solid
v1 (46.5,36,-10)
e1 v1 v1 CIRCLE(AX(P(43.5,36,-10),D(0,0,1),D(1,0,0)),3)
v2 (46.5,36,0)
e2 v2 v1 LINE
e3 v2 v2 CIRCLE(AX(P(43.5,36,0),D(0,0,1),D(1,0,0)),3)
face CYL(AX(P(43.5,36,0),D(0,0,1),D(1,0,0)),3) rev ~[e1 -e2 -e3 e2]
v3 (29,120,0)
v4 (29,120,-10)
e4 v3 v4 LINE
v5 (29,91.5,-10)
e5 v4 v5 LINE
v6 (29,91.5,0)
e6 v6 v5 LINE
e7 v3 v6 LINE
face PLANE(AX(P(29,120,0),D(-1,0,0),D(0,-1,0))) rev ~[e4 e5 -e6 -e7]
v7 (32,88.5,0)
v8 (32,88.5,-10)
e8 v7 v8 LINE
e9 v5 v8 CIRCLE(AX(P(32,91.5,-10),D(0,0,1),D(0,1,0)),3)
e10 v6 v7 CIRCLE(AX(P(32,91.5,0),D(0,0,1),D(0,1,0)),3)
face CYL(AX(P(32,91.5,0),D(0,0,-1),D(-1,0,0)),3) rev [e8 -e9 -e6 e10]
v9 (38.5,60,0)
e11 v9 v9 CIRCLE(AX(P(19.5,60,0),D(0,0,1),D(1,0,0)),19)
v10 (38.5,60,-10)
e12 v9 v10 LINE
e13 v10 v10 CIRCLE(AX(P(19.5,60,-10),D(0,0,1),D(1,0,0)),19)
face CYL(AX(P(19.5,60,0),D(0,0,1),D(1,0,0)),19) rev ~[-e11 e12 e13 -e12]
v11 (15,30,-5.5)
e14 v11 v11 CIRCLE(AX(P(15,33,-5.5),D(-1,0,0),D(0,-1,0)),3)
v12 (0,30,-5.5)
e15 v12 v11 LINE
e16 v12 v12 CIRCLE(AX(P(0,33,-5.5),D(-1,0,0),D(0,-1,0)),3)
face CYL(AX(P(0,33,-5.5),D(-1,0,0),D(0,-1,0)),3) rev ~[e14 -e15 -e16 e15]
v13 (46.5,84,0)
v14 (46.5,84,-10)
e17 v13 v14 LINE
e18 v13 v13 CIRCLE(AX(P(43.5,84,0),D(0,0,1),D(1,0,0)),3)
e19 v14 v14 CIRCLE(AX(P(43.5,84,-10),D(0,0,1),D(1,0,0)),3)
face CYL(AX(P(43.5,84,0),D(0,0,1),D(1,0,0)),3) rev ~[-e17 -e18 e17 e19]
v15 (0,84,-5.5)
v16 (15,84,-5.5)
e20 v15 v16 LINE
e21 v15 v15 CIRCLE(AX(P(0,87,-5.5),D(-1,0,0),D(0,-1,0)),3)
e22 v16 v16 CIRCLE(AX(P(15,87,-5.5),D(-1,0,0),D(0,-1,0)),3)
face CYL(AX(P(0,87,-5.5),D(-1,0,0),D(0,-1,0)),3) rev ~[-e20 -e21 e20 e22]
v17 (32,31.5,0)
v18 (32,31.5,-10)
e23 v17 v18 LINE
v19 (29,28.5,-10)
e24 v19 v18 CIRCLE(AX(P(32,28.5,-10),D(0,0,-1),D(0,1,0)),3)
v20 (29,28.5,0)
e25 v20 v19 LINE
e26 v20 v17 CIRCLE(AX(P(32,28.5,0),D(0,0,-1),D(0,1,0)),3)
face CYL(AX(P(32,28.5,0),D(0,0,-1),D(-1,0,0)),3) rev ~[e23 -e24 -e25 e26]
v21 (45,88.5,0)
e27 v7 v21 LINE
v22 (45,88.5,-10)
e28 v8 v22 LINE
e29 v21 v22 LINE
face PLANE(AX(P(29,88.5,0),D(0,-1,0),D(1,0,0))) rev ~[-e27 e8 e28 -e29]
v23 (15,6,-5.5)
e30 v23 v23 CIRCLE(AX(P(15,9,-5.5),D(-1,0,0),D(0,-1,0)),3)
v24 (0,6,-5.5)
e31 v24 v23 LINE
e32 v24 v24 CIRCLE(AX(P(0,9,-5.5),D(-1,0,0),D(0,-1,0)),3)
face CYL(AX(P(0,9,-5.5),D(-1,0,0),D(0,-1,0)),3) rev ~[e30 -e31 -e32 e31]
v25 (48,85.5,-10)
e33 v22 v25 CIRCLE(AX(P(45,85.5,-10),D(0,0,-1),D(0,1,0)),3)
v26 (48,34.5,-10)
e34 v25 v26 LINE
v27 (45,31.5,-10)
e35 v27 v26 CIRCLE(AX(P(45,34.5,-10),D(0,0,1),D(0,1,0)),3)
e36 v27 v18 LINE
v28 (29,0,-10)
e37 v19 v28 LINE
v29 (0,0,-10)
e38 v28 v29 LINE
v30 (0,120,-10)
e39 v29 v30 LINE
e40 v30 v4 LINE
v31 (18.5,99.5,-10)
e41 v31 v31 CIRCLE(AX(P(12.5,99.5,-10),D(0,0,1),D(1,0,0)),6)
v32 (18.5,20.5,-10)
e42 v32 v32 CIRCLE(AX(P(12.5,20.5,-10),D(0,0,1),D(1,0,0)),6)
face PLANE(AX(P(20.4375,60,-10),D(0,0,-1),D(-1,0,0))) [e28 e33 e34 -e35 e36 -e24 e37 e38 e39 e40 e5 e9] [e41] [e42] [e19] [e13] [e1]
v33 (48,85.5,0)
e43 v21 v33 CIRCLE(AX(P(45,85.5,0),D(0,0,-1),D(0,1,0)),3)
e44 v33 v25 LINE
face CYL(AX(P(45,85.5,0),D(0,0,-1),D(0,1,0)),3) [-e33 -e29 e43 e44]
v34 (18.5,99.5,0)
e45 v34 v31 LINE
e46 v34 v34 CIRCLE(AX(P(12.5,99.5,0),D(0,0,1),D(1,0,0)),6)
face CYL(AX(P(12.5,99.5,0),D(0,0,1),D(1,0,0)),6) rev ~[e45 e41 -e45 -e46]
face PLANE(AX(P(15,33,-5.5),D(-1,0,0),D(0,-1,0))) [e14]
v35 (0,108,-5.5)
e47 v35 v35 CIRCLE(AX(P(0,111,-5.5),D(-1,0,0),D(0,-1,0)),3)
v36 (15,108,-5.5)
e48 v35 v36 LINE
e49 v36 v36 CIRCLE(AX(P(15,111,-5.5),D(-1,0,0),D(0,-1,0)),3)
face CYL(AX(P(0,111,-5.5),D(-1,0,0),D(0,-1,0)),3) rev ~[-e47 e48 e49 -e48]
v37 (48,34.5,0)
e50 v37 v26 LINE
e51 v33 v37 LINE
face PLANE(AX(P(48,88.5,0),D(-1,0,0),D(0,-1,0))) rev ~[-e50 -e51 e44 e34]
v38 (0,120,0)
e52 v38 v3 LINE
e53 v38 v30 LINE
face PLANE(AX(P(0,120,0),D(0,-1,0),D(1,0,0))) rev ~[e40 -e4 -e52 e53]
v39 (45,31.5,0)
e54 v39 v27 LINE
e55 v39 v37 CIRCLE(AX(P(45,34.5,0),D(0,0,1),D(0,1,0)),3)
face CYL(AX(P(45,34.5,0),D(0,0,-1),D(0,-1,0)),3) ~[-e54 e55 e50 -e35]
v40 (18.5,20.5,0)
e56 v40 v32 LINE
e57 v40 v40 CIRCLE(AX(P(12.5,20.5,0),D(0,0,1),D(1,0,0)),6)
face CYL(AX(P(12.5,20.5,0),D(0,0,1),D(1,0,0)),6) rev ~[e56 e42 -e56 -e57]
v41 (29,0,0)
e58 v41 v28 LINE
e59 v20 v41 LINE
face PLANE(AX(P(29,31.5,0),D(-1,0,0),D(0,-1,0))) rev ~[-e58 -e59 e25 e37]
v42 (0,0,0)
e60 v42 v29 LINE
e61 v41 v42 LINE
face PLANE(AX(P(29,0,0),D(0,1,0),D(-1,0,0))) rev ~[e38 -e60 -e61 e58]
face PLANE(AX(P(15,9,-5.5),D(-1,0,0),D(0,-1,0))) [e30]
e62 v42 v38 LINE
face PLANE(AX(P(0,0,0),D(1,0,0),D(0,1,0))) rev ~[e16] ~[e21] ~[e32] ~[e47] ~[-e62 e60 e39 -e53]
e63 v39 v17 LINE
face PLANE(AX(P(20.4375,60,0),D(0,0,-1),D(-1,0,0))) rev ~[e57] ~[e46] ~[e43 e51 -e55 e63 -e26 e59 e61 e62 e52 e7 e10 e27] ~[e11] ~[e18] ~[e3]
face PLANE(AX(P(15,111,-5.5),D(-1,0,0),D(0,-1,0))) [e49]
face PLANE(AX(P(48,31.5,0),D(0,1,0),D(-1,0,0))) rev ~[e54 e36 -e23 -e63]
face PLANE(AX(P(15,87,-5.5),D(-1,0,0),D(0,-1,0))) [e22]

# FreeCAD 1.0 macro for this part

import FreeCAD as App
import Part
import Sketcher

V = App.Vector


def edges_at(feature, points):
    """Names of the edges that pass closest to the given points."""
    edges = feature.Shape.Edges
    near = lambda p: min(range(len(edges)), key=lambda i: edges[i].distToShape(Part.Vertex(*p))[0])
    return sorted({f"Edge{near(p) + 1}" for p in points})


def add_polygon(sketch, points):
    """Adds a closed chain of lines whose ends are joined by coincident constraints."""
    first, n = sketch.GeometryCount, len(points)
    for a, b in zip(points, points[1:] + points[:1]):
        sketch.addGeometry(Part.LineSegment(App.Vector(*a, 0), App.Vector(*b, 0)), False)
    for i in range(n):
        sketch.addConstraint(Sketcher.Constraint("Coincident", first + i, 2, first + (i + 1) % n, 1))

doc = App.newDocument("Part")
body = doc.addObject("PartDesign::Body", "Body")

sketch1 = body.newObject("Sketcher::SketchObject", "Sketch")
sketch1.AttachmentSupport = (doc.getObject("XY_Plane"), [""])
sketch1.MapMode = "FlatFace"
add_polygon(sketch1, [(0, 120), (0, 0), (29, 0), (29, 31.5), (48, 31.5), (48, 88.5), (29, 88.5), (29, 120)])
sketch1.addConstraint(Sketcher.Constraint("Vertical", 0))
sketch1.addConstraint(Sketcher.Constraint("Horizontal", 1))
sketch1.addConstraint(Sketcher.Constraint("Vertical", 2))
sketch1.addConstraint(Sketcher.Constraint("Horizontal", 3))
sketch1.addConstraint(Sketcher.Constraint("Vertical", 4))
sketch1.addConstraint(Sketcher.Constraint("Horizontal", 5))
sketch1.addConstraint(Sketcher.Constraint("Vertical", 6))
sketch1.addConstraint(Sketcher.Constraint("Horizontal", 7))
sketch1.addConstraint(Sketcher.Constraint("Coincident", 0, 2, -1, 1))
sketch1.addConstraint(Sketcher.Constraint("Vertical", 2, 2, 5, 2))
sketch1.addConstraint(Sketcher.Constraint("Equal", 2, 6))
sketch1.addConstraint(Sketcher.Constraint("DistanceX", 1, 1, 1, 2, 29.0))
sketch1.addConstraint(Sketcher.Constraint("DistanceX", 3, 1, 3, 2, 19.0))
sketch1.addConstraint(Sketcher.Constraint("DistanceY", 0, 2, 0, 1, 120.0))
sketch1.addConstraint(Sketcher.Constraint("DistanceY", 4, 1, 4, 2, 57.0))
pad1 = body.newObject("PartDesign::Pad", "Pad")
pad1.Profile = sketch1
pad1.Length = 10
pad1.Reversed = True

sketch2 = body.newObject("Sketcher::SketchObject", "Sketch001")
sketch2.AttachmentSupport = (doc.getObject("XY_Plane"), [""])
sketch2.MapMode = "FlatFace"
sketch2.addGeometry(Part.Circle(V(19.5, 60, 0), V(0, 0, 1), 19), False)
sketch2.addConstraint(Sketcher.Constraint("Diameter", 0, 38.0))
sketch2.addConstraint(Sketcher.Constraint("DistanceY", -1, 1, 0, 3, 60.0))
sketch2.addConstraint(Sketcher.Constraint("DistanceX", -1, 1, 0, 3, 19.5))
pocket1 = body.newObject("PartDesign::Pocket", "Pocket")
pocket1.Profile = sketch2
pocket1.Type = "ThroughAll"

sketch3 = body.newObject("Sketcher::SketchObject", "Sketch002")
sketch3.AttachmentSupport = (doc.getObject("XY_Plane"), [""])
sketch3.MapMode = "FlatFace"
sketch3.addGeometry(Part.Circle(V(12.5, 99.5, 0), V(0, 0, 1), 6), False)
sketch3.addGeometry(Part.Circle(V(12.5, 20.5, 0), V(0, 0, 1), 6), False)
sketch3.addConstraint(Sketcher.Constraint("Equal", 0, 1))
sketch3.addConstraint(Sketcher.Constraint("Vertical", 0, 3, 1, 3))
sketch3.addConstraint(Sketcher.Constraint("Diameter", 0, 12.0))
sketch3.addConstraint(Sketcher.Constraint("DistanceY", 1, 3, 0, 3, 79.0))
sketch3.addConstraint(Sketcher.Constraint("DistanceX", -1, 1, 0, 3, 12.5))
sketch3.addConstraint(Sketcher.Constraint("DistanceY", -1, 1, 0, 3, 99.5))
pocket2 = body.newObject("PartDesign::Pocket", "Pocket001")
pocket2.Profile = sketch3
pocket2.Type = "ThroughAll"
doc.recompute()

fillet = body.newObject("PartDesign::Fillet", "Fillet")
fillet.Base = (pocket2, edges_at(pocket2, [
    (29, 31.5, -5),
    (29, 88.5, -5),
    (48, 31.5, -5),
    (48, 88.5, -5),
]))
fillet.Radius = 3

sketch4 = body.newObject("Sketcher::SketchObject", "Sketch003")
sketch4.AttachmentSupport = (doc.getObject("YZ_Plane"), [""])
sketch4.MapMode = "FlatFace"
sketch4.addGeometry(Part.Circle(V(111, -5.5, 0), V(0, 0, 1), 3), False)
sketch4.addGeometry(Part.Circle(V(87, -5.5, 0), V(0, 0, 1), 3), False)
sketch4.addGeometry(Part.Circle(V(33, -5.5, 0), V(0, 0, 1), 3), False)
sketch4.addGeometry(Part.Circle(V(9, -5.5, 0), V(0, 0, 1), 3), False)
sketch4.addConstraint(Sketcher.Constraint("Equal", 0, 1))
sketch4.addConstraint(Sketcher.Constraint("Equal", 1, 2))
sketch4.addConstraint(Sketcher.Constraint("Equal", 2, 3))
sketch4.addConstraint(Sketcher.Constraint("Horizontal", 0, 3, 1, 3))
sketch4.addConstraint(Sketcher.Constraint("Horizontal", 1, 3, 2, 3))
sketch4.addConstraint(Sketcher.Constraint("Horizontal", 2, 3, 3, 3))
sketch4.addConstraint(Sketcher.Constraint("Diameter", 0, 6.0))
sketch4.addConstraint(Sketcher.Constraint("DistanceX", -1, 1, 0, 3, 111.0))
sketch4.addConstraint(Sketcher.Constraint("DistanceX", -1, 1, 1, 3, 87.0))
sketch4.addConstraint(Sketcher.Constraint("DistanceX", -1, 1, 2, 3, 33.0))
sketch4.addConstraint(Sketcher.Constraint("DistanceX", -1, 1, 3, 3, 9.0))
sketch4.addConstraint(Sketcher.Constraint("DistanceY", 0, 3, -1, 1, 5.5))
pocket3 = body.newObject("PartDesign::Pocket", "Pocket002")
pocket3.Profile = sketch4
pocket3.Length = 15
pocket3.Reversed = True

sketch5 = body.newObject("Sketcher::SketchObject", "Sketch004")
sketch5.AttachmentSupport = (doc.getObject("XY_Plane"), [""])
sketch5.MapMode = "FlatFace"
sketch5.addGeometry(Part.Circle(V(43.5, 84, 0), V(0, 0, 1), 3), False)
sketch5.addGeometry(Part.Circle(V(43.5, 36, 0), V(0, 0, 1), 3), False)
sketch5.addConstraint(Sketcher.Constraint("Equal", 0, 1))
sketch5.addConstraint(Sketcher.Constraint("Vertical", 0, 3, 1, 3))
sketch5.addConstraint(Sketcher.Constraint("Diameter", 0, 6.0))
sketch5.addConstraint(Sketcher.Constraint("DistanceY", -1, 1, 0, 3, 84.0))
sketch5.addConstraint(Sketcher.Constraint("DistanceY", -1, 1, 1, 3, 36.0))
sketch5.addConstraint(Sketcher.Constraint("DistanceX", -1, 1, 0, 3, 43.5))
pocket4 = body.newObject("PartDesign::Pocket", "Pocket003")
pocket4.Profile = sketch5
pocket4.Type = "ThroughAll"

doc.recompute()
